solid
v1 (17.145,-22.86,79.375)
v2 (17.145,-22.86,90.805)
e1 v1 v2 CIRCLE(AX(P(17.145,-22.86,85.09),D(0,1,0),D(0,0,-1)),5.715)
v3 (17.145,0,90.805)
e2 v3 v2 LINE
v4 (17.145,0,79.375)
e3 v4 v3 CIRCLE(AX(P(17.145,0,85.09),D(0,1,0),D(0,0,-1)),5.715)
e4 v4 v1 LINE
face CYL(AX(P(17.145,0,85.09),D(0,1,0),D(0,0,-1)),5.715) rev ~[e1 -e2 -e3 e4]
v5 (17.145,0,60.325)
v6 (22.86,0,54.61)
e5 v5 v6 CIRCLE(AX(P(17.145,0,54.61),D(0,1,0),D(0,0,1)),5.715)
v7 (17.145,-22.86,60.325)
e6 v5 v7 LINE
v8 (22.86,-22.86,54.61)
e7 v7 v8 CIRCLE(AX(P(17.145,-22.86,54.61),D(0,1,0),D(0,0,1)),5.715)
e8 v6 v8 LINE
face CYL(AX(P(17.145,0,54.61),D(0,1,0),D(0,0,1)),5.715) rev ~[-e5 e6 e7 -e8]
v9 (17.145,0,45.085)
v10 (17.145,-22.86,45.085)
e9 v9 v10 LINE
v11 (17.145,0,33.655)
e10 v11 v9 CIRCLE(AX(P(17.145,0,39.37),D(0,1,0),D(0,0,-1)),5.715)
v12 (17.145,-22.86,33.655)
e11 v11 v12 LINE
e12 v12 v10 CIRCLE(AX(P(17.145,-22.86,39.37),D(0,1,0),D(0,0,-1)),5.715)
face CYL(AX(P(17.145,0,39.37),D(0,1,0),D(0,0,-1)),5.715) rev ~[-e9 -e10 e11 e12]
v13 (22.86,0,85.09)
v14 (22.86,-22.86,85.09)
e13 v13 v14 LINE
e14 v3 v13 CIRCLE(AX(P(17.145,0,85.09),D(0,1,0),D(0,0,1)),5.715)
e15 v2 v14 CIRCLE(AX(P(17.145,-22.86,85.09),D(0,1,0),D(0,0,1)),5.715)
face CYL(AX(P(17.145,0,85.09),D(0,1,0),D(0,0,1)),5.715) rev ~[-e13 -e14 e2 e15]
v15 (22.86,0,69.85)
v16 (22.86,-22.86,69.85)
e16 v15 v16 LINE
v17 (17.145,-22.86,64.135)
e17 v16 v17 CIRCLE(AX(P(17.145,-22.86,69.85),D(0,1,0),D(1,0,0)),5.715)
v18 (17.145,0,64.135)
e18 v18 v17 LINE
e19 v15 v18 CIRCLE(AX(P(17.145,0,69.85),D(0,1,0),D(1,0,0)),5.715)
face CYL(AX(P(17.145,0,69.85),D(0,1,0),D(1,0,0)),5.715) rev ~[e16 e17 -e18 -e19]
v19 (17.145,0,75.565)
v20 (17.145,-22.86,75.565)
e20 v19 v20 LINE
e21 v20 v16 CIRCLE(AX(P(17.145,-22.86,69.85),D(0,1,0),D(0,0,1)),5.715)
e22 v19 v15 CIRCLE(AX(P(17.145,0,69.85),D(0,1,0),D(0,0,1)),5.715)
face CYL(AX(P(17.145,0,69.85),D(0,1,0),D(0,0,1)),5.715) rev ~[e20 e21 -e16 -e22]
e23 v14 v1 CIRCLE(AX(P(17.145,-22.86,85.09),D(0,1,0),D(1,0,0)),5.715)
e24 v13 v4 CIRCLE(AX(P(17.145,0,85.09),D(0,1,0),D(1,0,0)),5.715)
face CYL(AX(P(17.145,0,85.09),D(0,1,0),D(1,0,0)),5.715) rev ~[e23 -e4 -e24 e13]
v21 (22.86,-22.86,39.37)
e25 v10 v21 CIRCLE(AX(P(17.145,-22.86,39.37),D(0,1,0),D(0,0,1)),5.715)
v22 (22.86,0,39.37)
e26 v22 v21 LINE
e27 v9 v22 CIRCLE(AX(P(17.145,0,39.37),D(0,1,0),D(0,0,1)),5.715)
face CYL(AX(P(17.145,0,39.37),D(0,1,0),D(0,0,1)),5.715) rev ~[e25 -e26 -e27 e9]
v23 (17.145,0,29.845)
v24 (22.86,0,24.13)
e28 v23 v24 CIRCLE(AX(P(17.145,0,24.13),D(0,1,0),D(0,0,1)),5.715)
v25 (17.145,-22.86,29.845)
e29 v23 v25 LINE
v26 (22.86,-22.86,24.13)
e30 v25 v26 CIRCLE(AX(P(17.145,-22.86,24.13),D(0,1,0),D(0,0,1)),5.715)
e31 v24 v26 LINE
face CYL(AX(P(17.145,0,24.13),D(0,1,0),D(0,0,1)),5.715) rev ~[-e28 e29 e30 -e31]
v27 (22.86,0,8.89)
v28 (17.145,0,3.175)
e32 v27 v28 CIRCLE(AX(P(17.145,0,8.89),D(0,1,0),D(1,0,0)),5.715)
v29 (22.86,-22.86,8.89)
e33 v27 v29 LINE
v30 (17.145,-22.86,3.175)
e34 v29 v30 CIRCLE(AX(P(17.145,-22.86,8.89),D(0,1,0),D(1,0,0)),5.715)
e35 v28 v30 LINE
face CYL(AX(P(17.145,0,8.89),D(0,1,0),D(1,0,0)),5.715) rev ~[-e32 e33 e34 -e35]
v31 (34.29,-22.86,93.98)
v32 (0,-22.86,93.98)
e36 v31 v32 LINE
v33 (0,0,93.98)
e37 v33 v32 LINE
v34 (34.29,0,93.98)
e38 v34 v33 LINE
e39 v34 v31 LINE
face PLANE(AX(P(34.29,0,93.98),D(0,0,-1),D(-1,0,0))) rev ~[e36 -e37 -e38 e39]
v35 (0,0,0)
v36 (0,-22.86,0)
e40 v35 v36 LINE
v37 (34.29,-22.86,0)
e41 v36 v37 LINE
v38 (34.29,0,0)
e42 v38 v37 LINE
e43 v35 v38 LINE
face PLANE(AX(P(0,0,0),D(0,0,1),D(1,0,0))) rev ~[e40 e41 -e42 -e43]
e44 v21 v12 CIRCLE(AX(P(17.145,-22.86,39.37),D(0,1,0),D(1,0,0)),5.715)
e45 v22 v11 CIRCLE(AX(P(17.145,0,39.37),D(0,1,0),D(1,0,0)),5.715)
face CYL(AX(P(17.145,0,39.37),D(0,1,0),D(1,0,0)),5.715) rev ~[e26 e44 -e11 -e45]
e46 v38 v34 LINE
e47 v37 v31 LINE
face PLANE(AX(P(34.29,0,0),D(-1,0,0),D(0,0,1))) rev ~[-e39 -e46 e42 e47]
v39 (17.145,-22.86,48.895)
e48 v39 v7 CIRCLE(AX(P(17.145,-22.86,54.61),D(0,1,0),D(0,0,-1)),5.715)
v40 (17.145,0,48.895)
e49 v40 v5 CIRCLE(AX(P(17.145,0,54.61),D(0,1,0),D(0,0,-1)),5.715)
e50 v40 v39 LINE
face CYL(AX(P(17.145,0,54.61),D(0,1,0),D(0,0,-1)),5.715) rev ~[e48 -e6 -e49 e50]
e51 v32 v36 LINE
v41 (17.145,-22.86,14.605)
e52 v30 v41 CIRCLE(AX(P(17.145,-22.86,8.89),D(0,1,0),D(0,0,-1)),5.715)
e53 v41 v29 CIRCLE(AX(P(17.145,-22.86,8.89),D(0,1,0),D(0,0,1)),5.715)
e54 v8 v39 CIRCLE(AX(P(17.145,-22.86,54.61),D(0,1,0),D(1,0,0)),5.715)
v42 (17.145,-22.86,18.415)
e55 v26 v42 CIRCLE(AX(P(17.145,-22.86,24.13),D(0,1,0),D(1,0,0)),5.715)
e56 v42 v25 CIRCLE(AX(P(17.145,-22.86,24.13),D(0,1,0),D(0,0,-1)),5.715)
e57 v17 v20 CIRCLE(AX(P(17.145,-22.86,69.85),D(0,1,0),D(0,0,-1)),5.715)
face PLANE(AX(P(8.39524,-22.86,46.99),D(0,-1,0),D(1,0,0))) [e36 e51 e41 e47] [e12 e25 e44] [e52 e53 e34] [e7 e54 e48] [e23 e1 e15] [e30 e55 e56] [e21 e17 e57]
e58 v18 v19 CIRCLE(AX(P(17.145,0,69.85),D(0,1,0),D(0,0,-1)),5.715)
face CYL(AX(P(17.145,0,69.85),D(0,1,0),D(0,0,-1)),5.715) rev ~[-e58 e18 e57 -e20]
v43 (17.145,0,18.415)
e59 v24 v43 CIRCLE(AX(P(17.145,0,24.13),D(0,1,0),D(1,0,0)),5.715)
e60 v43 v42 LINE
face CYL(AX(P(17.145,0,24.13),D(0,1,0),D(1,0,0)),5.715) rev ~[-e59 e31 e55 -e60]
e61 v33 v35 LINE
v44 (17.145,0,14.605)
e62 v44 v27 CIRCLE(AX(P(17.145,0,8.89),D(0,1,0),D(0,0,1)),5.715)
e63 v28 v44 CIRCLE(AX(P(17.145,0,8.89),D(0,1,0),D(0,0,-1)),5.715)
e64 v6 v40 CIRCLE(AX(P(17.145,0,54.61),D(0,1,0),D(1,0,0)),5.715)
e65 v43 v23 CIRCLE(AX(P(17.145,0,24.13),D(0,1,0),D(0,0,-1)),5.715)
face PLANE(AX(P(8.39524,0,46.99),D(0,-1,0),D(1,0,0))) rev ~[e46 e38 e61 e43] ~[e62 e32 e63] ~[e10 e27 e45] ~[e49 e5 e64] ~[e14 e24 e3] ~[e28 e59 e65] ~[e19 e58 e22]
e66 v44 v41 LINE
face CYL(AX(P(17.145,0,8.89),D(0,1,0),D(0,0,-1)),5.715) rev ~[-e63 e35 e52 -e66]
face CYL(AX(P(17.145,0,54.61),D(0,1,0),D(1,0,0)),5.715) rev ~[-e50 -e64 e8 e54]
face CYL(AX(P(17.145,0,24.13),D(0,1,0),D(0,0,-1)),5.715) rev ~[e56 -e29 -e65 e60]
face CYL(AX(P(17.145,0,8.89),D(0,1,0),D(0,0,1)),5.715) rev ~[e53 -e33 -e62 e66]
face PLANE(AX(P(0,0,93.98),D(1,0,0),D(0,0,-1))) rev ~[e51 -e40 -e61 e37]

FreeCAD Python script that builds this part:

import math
import FreeCAD as App
import Part
import Sketcher
from FreeCAD import Vector
Q = App.Units.Quantity

doc = App.newDocument("Part")
body = doc.addObject("PartDesign::Body", "Body")

# Sketch on XZ plane
sketch1 = body.newObject("Sketcher::SketchObject", "Sketch")
sketch1.AttachmentSupport = (doc.getObject("XZ_Plane"), [""])
sketch1.MapMode = "FlatFace"
sketch1.addGeometry(Part.LineSegment(Vector(0, 94, 0), Vector(0, 0, 0)), False)
sketch1.addGeometry(Part.LineSegment(Vector(0, 0, 0), Vector(34, 0, 0)), False)
sketch1.addGeometry(Part.LineSegment(Vector(34, 0, 0), Vector(34, 94, 0)), False)
sketch1.addGeometry(Part.LineSegment(Vector(34, 94, 0), Vector(0, 94, 0)), False)
sketch1.addGeometry(Part.ArcOfCircle(Part.Circle(Vector(17, 9, 0), Vector(0, 0, 1), 6), math.radians(90), math.radians(270)), False)
sketch1.addGeometry(Part.ArcOfCircle(Part.Circle(Vector(17, 9, 0), Vector(0, 0, 1), 6), math.radians(0), math.radians(90)), False)
sketch1.addGeometry(Part.ArcOfCircle(Part.Circle(Vector(17, 9, 0), Vector(0, 0, 1), 6), math.radians(-90), math.radians(0)), False)
sketch1.addGeometry(Part.ArcOfCircle(Part.Circle(Vector(17, 24, 0), Vector(0, 0, 1), 6), math.radians(90), math.radians(270)), False)
sketch1.addGeometry(Part.ArcOfCircle(Part.Circle(Vector(17, 24, 0), Vector(0, 0, 1), 6), math.radians(0), math.radians(90)), False)
sketch1.addGeometry(Part.ArcOfCircle(Part.Circle(Vector(17, 24, 0), Vector(0, 0, 1), 6), math.radians(-90), math.radians(0)), False)
sketch1.addGeometry(Part.ArcOfCircle(Part.Circle(Vector(17, 39, 0), Vector(0, 0, 1), 6), math.radians(90), math.radians(270)), False)
sketch1.addGeometry(Part.ArcOfCircle(Part.Circle(Vector(17, 39, 0), Vector(0, 0, 1), 6), math.radians(0), math.radians(90)), False)
sketch1.addGeometry(Part.ArcOfCircle(Part.Circle(Vector(17, 39, 0), Vector(0, 0, 1), 6), math.radians(-90), math.radians(0)), False)
sketch1.addGeometry(Part.ArcOfCircle(Part.Circle(Vector(17, 55, 0), Vector(0, 0, 1), 6), math.radians(90), math.radians(270)), False)
sketch1.addGeometry(Part.ArcOfCircle(Part.Circle(Vector(17, 55, 0), Vector(0, 0, 1), 6), math.radians(0), math.radians(90)), False)
sketch1.addGeometry(Part.ArcOfCircle(Part.Circle(Vector(17, 55, 0), Vector(0, 0, 1), 6), math.radians(-90), math.radians(0)), False)
sketch1.addGeometry(Part.ArcOfCircle(Part.Circle(Vector(17, 70, 0), Vector(0, 0, 1), 6), math.radians(90), math.radians(270)), False)
sketch1.addGeometry(Part.ArcOfCircle(Part.Circle(Vector(17, 70, 0), Vector(0, 0, 1), 6), math.radians(0), math.radians(90)), False)
sketch1.addGeometry(Part.ArcOfCircle(Part.Circle(Vector(17, 70, 0), Vector(0, 0, 1), 6), math.radians(-90), math.radians(0)), False)
sketch1.addGeometry(Part.ArcOfCircle(Part.Circle(Vector(17, 85, 0), Vector(0, 0, 1), 6), math.radians(90), math.radians(270)), False)
sketch1.addGeometry(Part.ArcOfCircle(Part.Circle(Vector(17, 85, 0), Vector(0, 0, 1), 6), math.radians(0), math.radians(90)), False)
sketch1.addGeometry(Part.ArcOfCircle(Part.Circle(Vector(17, 85, 0), Vector(0, 0, 1), 6), math.radians(-90), math.radians(0)), False)
sketch1.addConstraint(Sketcher.Constraint("Coincident", 0, 2, 1, 1))
sketch1.addConstraint(Sketcher.Constraint("Coincident", 1, 2, 2, 1))
sketch1.addConstraint(Sketcher.Constraint("Coincident", 2, 2, 3, 1))
sketch1.addConstraint(Sketcher.Constraint("Coincident", 3, 2, 0, 1))
sketch1.addConstraint(Sketcher.Constraint("Tangent", 4, 1, 5, 2))
sketch1.addConstraint(Sketcher.Constraint("Tangent", 5, 1, 6, 2))
sketch1.addConstraint(Sketcher.Constraint("Tangent", 6, 1, 4, 2))
sketch1.addConstraint(Sketcher.Constraint("Tangent", 7, 1, 8, 2))
sketch1.addConstraint(Sketcher.Constraint("Tangent", 8, 1, 9, 2))
sketch1.addConstraint(Sketcher.Constraint("Tangent", 9, 1, 7, 2))
sketch1.addConstraint(Sketcher.Constraint("Tangent", 10, 1, 11, 2))
sketch1.addConstraint(Sketcher.Constraint("Tangent", 11, 1, 12, 2))
sketch1.addConstraint(Sketcher.Constraint("Tangent", 12, 1, 10, 2))
sketch1.addConstraint(Sketcher.Constraint("Tangent", 13, 1, 14, 2))
sketch1.addConstraint(Sketcher.Constraint("Tangent", 14, 1, 15, 2))
sketch1.addConstraint(Sketcher.Constraint("Tangent", 15, 1, 13, 2))
sketch1.addConstraint(Sketcher.Constraint("Tangent", 16, 1, 17, 2))
sketch1.addConstraint(Sketcher.Constraint("Tangent", 17, 1, 18, 2))
sketch1.addConstraint(Sketcher.Constraint("Tangent", 18, 1, 16, 2))
sketch1.addConstraint(Sketcher.Constraint("Tangent", 19, 1, 20, 2))
sketch1.addConstraint(Sketcher.Constraint("Tangent", 20, 1, 21, 2))
sketch1.addConstraint(Sketcher.Constraint("Tangent", 21, 1, 19, 2))
sketch1.addConstraint(Sketcher.Constraint("Vertical", 0))
sketch1.addConstraint(Sketcher.Constraint("Horizontal", 1))
sketch1.addConstraint(Sketcher.Constraint("Vertical", 2))
sketch1.addConstraint(Sketcher.Constraint("Horizontal", 3))
sketch1.addConstraint(Sketcher.Constraint("Coincident", 0, 2, -1, 1))
sketch1.addConstraint(Sketcher.Constraint("Equal", 6, 7))
sketch1.addConstraint(Sketcher.Constraint("Equal", 9, 10))
sketch1.addConstraint(Sketcher.Constraint("Equal", 12, 13))
sketch1.addConstraint(Sketcher.Constraint("Equal", 15, 16))
sketch1.addConstraint(Sketcher.Constraint("Equal", 18, 19))
sketch1.addConstraint(Sketcher.Constraint("Horizontal", 6, 3, 5, 1))
sketch1.addConstraint(Sketcher.Constraint("Horizontal", 9, 3, 8, 1))
sketch1.addConstraint(Sketcher.Constraint("Horizontal", 12, 3, 11, 1))
sketch1.addConstraint(Sketcher.Constraint("Horizontal", 15, 3, 14, 1))
sketch1.addConstraint(Sketcher.Constraint("Horizontal", 18, 3, 17, 1))
sketch1.addConstraint(Sketcher.Constraint("Horizontal", 21, 3, 20, 1))
sketch1.addConstraint(Sketcher.Constraint("Vertical", 6, 3, 7, 3))
sketch1.addConstraint(Sketcher.Constraint("Vertical", 9, 3, 10, 3))
sketch1.addConstraint(Sketcher.Constraint("Vertical", 12, 3, 13, 3))
sketch1.addConstraint(Sketcher.Constraint("Vertical", 15, 3, 16, 3))
sketch1.addConstraint(Sketcher.Constraint("Vertical", 18, 3, 19, 3))
sketch1.addConstraint(Sketcher.Constraint("Vertical", 21, 3, 4, 1))
sketch1.addConstraint(Sketcher.Constraint("Vertical", 4, 1, 6, 1))
sketch1.addConstraint(Sketcher.Constraint("Vertical", 6, 1, 7, 1))
sketch1.addConstraint(Sketcher.Constraint("Vertical", 7, 1, 9, 1))
sketch1.addConstraint(Sketcher.Constraint("Vertical", 9, 1, 10, 1))
sketch1.addConstraint(Sketcher.Constraint("Vertical", 10, 1, 12, 1))
sketch1.addConstraint(Sketcher.Constraint("Vertical", 12, 1, 13, 1))
sketch1.addConstraint(Sketcher.Constraint("Vertical", 13, 1, 15, 1))
sketch1.addConstraint(Sketcher.Constraint("Vertical", 15, 1, 16, 1))
sketch1.addConstraint(Sketcher.Constraint("Vertical", 16, 1, 18, 1))
sketch1.addConstraint(Sketcher.Constraint("Vertical", 18, 1, 19, 1))
sketch1.addConstraint(Sketcher.Constraint("Vertical", 19, 1, 21, 1))
sketch1.addConstraint(Sketcher.Constraint("DistanceY", 0, 2, 0, 1, Q("3.7 in")))
sketch1.addConstraint(Sketcher.Constraint("Radius", 4, Q("0.225 in")))
sketch1.addConstraint(Sketcher.Constraint("DistanceX", 1, 1, 1, 2, Q("1.35 in")))
sketch1.addConstraint(Sketcher.Constraint("DistanceX", -1, 1, 5, 1, Q("0.9 in")))
sketch1.addConstraint(Sketcher.Constraint("DistanceY", 4, 3, 7, 3, Q("0.6 in")))
sketch1.addConstraint(Sketcher.Constraint("DistanceY", 7, 3, 10, 3, Q("0.6 in")))
sketch1.addConstraint(Sketcher.Constraint("DistanceY", 10, 3, 13, 3, Q("0.6 in")))
sketch1.addConstraint(Sketcher.Constraint("DistanceY", 13, 3, 16, 3, Q("0.6 in")))
sketch1.addConstraint(Sketcher.Constraint("DistanceY", 16, 3, 19, 3, Q("0.6 in")))
sketch1.addConstraint(Sketcher.Constraint("DistanceY", -1, 1, 4, 3, Q("0.35 in")))
pad1 = body.newObject("PartDesign::Pad", "Pad")
pad1.Profile = sketch1
pad1.Length = Q("0.9 in")

doc.recompute()
